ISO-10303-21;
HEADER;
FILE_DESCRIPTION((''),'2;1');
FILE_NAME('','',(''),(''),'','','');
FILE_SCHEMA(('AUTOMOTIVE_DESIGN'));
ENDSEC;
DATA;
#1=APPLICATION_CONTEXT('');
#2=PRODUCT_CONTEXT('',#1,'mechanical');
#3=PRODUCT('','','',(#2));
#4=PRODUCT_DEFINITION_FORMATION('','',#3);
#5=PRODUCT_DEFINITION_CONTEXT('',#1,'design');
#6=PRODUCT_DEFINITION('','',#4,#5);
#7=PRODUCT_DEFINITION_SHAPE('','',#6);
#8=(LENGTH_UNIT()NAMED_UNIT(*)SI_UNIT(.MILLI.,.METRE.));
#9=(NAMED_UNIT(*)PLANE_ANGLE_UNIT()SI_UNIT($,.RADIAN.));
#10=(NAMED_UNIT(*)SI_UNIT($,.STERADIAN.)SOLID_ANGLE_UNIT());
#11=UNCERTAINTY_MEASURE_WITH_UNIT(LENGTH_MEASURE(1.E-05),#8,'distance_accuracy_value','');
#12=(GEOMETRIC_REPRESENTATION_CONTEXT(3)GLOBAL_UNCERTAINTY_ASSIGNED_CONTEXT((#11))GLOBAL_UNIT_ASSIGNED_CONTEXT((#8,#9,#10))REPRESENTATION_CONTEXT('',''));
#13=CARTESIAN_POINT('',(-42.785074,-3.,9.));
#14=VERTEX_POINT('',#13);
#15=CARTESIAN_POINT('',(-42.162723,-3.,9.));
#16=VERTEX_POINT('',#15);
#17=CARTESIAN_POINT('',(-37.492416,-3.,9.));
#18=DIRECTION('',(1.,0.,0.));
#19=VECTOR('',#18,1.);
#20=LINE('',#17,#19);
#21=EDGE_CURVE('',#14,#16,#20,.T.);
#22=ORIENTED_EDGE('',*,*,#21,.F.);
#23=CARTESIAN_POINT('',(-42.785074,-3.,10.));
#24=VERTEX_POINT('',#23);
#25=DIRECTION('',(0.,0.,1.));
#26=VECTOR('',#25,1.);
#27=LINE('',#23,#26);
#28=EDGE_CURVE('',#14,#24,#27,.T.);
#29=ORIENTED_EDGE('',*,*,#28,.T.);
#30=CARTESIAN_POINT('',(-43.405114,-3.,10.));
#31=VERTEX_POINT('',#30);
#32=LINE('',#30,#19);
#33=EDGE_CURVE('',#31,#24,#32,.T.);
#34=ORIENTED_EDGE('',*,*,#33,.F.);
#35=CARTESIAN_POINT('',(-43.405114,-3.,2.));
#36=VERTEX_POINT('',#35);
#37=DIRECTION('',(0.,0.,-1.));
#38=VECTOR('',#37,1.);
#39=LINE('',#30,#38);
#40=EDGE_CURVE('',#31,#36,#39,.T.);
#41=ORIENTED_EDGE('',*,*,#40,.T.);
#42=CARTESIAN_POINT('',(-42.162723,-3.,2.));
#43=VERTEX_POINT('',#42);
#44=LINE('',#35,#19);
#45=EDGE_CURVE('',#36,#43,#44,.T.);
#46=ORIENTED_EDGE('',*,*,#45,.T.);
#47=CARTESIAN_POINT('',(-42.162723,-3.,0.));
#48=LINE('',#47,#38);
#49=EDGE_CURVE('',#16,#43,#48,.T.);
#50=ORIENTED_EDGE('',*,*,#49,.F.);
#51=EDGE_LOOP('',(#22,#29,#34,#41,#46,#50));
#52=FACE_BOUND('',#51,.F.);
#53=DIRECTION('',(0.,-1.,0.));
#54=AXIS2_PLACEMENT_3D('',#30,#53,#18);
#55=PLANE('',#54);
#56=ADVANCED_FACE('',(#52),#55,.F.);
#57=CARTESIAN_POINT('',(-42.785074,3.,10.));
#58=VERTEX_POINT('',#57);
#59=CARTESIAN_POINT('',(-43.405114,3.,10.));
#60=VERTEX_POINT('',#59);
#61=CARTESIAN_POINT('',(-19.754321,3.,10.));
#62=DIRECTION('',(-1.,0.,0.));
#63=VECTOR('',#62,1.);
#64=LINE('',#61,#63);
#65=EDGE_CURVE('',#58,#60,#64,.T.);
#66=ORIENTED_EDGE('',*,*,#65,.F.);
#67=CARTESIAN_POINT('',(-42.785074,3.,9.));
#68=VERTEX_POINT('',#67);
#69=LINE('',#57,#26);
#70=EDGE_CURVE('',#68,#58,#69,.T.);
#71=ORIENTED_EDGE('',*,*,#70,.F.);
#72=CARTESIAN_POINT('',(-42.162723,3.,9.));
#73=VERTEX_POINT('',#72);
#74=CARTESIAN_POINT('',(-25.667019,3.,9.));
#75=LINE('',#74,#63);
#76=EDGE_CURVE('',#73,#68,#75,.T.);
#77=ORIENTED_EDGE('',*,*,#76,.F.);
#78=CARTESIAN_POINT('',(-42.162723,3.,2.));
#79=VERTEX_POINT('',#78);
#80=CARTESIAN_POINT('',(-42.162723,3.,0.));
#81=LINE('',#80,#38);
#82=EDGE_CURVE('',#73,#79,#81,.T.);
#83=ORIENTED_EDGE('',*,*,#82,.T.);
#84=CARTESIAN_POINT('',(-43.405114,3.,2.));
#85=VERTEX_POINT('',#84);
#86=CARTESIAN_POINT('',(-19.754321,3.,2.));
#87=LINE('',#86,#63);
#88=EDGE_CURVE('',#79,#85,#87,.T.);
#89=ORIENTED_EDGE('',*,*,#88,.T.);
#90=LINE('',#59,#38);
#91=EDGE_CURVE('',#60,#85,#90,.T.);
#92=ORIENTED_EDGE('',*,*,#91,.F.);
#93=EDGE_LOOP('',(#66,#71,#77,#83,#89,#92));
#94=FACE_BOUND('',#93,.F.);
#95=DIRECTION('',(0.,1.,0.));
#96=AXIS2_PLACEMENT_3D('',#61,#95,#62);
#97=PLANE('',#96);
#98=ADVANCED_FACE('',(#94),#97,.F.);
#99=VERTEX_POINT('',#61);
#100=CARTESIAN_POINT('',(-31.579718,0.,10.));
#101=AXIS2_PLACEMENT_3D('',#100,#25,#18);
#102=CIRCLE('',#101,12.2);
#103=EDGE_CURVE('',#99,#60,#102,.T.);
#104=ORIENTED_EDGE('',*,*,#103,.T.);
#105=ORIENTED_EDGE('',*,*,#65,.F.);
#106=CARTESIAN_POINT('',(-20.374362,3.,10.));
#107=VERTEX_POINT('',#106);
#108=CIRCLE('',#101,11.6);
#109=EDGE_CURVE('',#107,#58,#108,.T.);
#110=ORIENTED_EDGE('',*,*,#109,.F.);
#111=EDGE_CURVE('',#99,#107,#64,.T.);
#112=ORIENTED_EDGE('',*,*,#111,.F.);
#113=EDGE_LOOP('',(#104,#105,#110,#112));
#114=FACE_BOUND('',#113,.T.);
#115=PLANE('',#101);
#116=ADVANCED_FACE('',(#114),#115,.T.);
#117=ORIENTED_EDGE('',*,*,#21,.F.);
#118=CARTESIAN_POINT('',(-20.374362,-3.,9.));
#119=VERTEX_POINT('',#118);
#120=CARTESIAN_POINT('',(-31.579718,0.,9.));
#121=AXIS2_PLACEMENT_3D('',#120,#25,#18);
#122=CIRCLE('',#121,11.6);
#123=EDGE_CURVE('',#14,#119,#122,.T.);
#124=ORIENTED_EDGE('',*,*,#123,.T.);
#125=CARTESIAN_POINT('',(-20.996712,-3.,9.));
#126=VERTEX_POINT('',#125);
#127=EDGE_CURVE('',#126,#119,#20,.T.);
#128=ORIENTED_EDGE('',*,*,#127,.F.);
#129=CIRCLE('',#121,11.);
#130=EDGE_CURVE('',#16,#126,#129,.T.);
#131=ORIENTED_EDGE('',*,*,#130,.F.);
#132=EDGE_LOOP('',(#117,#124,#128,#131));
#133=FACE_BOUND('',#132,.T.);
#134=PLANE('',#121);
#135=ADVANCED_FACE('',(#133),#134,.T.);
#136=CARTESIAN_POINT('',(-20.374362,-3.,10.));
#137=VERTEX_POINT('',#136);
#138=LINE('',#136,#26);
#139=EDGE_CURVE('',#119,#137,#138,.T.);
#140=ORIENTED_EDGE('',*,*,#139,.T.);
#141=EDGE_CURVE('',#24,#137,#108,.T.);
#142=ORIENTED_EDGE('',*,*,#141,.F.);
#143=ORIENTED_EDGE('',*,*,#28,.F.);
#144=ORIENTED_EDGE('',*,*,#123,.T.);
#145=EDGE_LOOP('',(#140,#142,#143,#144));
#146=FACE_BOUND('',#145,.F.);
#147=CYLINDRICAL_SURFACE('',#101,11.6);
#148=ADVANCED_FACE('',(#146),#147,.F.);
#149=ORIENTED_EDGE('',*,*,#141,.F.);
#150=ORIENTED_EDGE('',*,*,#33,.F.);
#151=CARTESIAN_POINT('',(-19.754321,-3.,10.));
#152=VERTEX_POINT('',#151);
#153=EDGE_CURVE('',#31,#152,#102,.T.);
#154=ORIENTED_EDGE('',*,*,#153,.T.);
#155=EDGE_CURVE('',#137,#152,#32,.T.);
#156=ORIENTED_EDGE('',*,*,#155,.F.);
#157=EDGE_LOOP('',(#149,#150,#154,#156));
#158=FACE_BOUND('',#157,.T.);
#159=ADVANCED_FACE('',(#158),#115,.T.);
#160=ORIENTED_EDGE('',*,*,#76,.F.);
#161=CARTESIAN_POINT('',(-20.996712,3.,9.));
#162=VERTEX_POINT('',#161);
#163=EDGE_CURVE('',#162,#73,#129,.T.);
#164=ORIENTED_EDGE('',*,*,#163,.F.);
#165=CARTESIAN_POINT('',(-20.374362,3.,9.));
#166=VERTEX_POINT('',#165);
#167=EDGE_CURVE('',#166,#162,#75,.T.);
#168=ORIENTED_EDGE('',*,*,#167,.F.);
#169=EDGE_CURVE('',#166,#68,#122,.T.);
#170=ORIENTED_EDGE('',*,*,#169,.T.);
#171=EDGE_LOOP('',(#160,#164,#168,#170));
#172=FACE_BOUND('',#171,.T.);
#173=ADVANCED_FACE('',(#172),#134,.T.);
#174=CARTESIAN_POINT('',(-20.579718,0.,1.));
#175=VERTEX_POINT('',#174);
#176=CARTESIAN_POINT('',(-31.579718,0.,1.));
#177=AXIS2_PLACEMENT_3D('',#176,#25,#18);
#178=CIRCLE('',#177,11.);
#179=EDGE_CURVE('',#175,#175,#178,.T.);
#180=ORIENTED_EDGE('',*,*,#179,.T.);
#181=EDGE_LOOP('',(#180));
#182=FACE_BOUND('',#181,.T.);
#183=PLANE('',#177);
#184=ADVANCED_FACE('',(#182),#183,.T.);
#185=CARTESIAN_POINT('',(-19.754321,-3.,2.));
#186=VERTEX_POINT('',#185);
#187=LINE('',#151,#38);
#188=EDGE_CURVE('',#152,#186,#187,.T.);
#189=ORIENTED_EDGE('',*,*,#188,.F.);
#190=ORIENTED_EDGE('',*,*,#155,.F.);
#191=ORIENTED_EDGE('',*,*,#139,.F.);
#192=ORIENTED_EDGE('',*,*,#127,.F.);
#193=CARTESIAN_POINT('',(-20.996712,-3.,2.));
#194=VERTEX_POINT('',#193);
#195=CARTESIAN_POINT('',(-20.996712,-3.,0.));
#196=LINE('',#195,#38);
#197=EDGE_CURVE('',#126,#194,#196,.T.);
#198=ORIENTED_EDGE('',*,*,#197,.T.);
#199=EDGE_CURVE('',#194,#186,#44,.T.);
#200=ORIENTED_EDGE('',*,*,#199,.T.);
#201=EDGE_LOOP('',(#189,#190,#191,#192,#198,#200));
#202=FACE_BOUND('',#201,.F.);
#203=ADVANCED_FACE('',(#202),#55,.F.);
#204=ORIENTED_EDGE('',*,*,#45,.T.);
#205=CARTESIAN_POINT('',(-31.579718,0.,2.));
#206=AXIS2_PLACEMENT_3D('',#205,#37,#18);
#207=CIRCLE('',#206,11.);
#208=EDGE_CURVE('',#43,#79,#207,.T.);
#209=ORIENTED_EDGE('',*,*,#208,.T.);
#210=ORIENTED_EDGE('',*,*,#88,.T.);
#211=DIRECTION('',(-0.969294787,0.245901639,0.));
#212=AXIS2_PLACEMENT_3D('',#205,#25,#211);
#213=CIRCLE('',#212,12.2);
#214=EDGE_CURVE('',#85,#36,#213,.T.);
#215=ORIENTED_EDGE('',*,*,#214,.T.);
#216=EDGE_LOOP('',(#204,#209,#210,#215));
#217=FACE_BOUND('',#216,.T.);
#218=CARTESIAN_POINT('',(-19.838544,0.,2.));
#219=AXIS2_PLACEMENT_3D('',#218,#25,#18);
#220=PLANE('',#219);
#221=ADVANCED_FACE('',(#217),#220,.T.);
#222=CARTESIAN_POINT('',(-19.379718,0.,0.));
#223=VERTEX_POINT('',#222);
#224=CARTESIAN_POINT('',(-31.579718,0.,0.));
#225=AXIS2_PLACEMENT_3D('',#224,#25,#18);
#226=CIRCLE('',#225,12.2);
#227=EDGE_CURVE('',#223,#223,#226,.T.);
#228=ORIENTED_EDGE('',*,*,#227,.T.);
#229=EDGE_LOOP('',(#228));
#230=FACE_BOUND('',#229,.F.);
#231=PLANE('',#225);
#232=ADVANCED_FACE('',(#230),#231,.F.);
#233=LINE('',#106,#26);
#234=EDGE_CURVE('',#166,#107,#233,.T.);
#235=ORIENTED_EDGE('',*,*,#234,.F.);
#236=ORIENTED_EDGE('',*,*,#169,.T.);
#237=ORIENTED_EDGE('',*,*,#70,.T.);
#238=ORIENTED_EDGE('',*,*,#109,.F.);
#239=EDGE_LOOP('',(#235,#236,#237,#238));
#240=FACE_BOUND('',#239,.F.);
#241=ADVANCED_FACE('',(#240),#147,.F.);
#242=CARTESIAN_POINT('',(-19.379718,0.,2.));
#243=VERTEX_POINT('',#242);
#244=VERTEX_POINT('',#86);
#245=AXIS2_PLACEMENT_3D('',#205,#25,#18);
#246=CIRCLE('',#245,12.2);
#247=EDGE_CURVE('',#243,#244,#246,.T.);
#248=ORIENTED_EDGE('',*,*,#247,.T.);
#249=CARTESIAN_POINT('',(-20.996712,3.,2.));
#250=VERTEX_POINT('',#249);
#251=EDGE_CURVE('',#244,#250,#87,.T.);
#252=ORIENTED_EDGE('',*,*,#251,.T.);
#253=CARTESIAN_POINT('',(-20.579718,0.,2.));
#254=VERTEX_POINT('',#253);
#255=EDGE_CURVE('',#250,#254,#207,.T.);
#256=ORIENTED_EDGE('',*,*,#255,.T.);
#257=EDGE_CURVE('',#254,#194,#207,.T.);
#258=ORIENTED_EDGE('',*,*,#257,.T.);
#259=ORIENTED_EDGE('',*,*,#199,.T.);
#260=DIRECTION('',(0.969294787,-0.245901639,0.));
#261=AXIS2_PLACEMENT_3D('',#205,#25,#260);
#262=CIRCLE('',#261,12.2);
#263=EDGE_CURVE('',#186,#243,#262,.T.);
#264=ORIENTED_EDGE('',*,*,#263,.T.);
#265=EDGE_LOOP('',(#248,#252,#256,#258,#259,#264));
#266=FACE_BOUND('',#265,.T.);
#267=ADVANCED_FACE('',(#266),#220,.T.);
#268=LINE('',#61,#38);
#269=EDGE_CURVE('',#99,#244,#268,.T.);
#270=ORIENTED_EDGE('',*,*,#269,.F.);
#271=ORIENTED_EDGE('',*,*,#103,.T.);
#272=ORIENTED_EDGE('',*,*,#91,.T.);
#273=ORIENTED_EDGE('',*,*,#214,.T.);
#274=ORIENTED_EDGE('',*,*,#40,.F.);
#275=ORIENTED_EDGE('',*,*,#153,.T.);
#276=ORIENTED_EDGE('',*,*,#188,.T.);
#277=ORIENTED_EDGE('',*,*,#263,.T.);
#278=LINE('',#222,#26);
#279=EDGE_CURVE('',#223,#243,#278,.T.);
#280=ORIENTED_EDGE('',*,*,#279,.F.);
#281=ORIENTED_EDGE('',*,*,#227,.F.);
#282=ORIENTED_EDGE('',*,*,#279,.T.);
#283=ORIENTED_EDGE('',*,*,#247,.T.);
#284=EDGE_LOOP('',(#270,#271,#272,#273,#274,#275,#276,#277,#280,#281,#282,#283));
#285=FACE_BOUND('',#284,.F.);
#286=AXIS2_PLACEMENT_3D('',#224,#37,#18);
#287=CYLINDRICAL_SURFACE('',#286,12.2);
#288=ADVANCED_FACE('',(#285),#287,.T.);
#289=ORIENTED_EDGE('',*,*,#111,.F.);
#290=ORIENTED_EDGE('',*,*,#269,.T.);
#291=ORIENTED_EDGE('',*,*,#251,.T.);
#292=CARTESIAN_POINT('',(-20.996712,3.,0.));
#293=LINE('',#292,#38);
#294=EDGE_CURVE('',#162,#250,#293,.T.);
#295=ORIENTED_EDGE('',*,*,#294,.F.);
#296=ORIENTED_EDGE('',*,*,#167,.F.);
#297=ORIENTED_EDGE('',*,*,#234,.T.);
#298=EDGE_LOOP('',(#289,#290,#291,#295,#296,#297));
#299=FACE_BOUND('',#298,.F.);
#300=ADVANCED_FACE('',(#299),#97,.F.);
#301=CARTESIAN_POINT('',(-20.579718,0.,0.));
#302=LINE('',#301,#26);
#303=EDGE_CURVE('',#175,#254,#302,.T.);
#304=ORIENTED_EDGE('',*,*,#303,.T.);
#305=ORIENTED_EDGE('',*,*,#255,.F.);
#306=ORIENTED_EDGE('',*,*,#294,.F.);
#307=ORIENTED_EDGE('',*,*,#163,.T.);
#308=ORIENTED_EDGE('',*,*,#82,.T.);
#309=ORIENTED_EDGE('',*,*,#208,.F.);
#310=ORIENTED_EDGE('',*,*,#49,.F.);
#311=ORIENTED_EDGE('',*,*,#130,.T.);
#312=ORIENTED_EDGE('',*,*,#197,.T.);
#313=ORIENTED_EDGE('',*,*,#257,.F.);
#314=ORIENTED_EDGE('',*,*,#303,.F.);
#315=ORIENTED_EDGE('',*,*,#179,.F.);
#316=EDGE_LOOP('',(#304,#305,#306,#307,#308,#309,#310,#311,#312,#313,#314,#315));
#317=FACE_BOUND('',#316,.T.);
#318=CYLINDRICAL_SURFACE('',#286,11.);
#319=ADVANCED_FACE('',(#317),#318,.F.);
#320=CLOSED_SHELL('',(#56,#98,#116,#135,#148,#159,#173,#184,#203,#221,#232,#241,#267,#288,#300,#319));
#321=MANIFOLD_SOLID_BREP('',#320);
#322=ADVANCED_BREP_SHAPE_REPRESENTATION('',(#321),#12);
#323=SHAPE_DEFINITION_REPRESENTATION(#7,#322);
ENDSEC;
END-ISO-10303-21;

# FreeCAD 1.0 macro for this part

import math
import FreeCAD as App
import Part
import Sketcher
from FreeCAD import Vector
Q = App.Units.Quantity

doc = App.newDocument("Part")
params = doc.addObject("Spreadsheet::Sheet", "Params")
for row, (alias, value) in enumerate([
    ("sketch1_diameter", "22 mm"),
    ("pad1_length", "1 mm"),
    ("sketch2_diameter", "22 mm"),
    ("sketch2_diameter2", "24.4 mm"),
    ("pad2_length", "10 mm"),
    ("sketch3_diameter", "22 mm"),
    ("sketch3_diameter2", "23.2 mm"),
    ("pocket1_length", "1 mm"),
    ("sketch4_radius", "12.2 mm"),
    ("pocket2_length", "8 mm"),
], start=1):
    params.set(f"A{row}", alias)
    params.set(f"B{row}", "=" + value)
    params.setAlias(f"B{row}", alias)

body = doc.addObject("PartDesign::Body", "Body")

# Sketch on XY plane
sketch1 = body.newObject("Sketcher::SketchObject", "Sketch")
sketch1.AttachmentSupport = (doc.getObject("XY_Plane"), [""])
sketch1.MapMode = "FlatFace"
sketch1.addGeometry(Part.Circle(Vector(-32, 0, 0), Vector(0, 0, 1), 11), False)
sketch1.addConstraint(Sketcher.Constraint("PointOnObject", 0, 3, -1))
sketch1.addConstraint(Sketcher.Constraint("Diameter", 0, Q("22 mm")))
sketch1.addConstraint(Sketcher.Constraint("DistanceX", 0, 3, -1, 1, Q("31.579718 mm")))
sketch1.setExpression("Constraints[1]", "Params.sketch1_diameter")
pad1 = body.newObject("PartDesign::Pad", "Pad")
pad1.Profile = sketch1
pad1.setExpression("Length", "Params.pad1_length")

# Sketch on XY plane
sketch2 = body.newObject("Sketcher::SketchObject", "Sketch001")
sketch2.AttachmentSupport = (doc.getObject("XY_Plane"), [""])
sketch2.MapMode = "FlatFace"
sketch2.addGeometry(Part.Circle(Vector(-32, 0, 0), Vector(0, 0, 1), 12), False)
sketch2.addGeometry(Part.Circle(Vector(-32, 0, 0), Vector(0, 0, 1), 11), False)
sketch2.addConstraint(Sketcher.Constraint("Coincident", 1, 3, 0, 3))
sketch2.addConstraint(Sketcher.Constraint("PointOnObject", 0, 3, -1))
sketch2.addConstraint(Sketcher.Constraint("Diameter", 1, Q("22 mm")))
sketch2.addConstraint(Sketcher.Constraint("Diameter", 0, Q("24.4 mm")))
sketch2.addConstraint(Sketcher.Constraint("DistanceX", 0, 3, -1, 1, Q("31.579718 mm")))
sketch2.setExpression("Constraints[2]", "Params.sketch2_diameter")
sketch2.setExpression("Constraints[3]", "Params.sketch2_diameter2")
pad2 = body.newObject("PartDesign::Pad", "Pad001")
pad2.Profile = sketch2
pad2.setExpression("Length", "Params.pad2_length")

# Sketch on XY plane
sketch3 = body.newObject("Sketcher::SketchObject", "Sketch002")
sketch3.AttachmentSupport = (doc.getObject("XY_Plane"), [""])
sketch3.MapMode = "FlatFace"
sketch3.AttachmentOffset = App.Placement(Vector(0, 0, 10), App.Rotation())
sketch3.addGeometry(Part.Circle(Vector(-32, 0, 0), Vector(0, 0, 1), 12), False)
sketch3.addGeometry(Part.Circle(Vector(-32, 0, 0), Vector(0, 0, 1), 11), False)
sketch3.addConstraint(Sketcher.Constraint("Coincident", 1, 3, 0, 3))
sketch3.addConstraint(Sketcher.Constraint("PointOnObject", 0, 3, -1))
sketch3.addConstraint(Sketcher.Constraint("Diameter", 1, Q("22 mm")))
sketch3.addConstraint(Sketcher.Constraint("Diameter", 0, Q("23.2 mm")))
sketch3.addConstraint(Sketcher.Constraint("DistanceX", 0, 3, -1, 1, Q("31.579718 mm")))
sketch3.setExpression("Constraints[2]", "Params.sketch3_diameter")
sketch3.setExpression("Constraints[3]", "Params.sketch3_diameter2")
pocket1 = body.newObject("PartDesign::Pocket", "Pocket")
pocket1.Profile = sketch3
pocket1.setExpression("Length", "Params.pocket1_length")

# Sketch on XY plane
sketch4 = body.newObject("Sketcher::SketchObject", "Sketch003")
sketch4.AttachmentSupport = (doc.getObject("XY_Plane"), [""])
sketch4.MapMode = "FlatFace"
sketch4.AttachmentOffset = App.Placement(Vector(0, 0, 10), App.Rotation())
sketch4.addGeometry(Part.ArcOfCircle(Part.Circle(Vector(-31.6, 0, 0), Vector(0, 0, 1), 12.2), math.radians(0), math.radians(14.24)), False)
sketch4.addGeometry(Part.LineSegment(Vector(-19.8, 3, 0), Vector(-43.4, 3, 0)), False)
sketch4.addGeometry(Part.ArcOfCircle(Part.Circle(Vector(-31.6, 0, 0), Vector(0, 0, 1), 12.2), math.radians(166), math.radians(194)), False)
sketch4.addGeometry(Part.LineSegment(Vector(-43.4, -3, 0), Vector(-19.8, -3, 0)), False)
sketch4.addGeometry(Part.ArcOfCircle(Part.Circle(Vector(-31.6, 0, 0), Vector(0, 0, 1), 12.2), math.radians(-14.24), math.radians(0)), False)
sketch4.addConstraint(Sketcher.Constraint("Coincident", 0, 2, 1, 1))
sketch4.addConstraint(Sketcher.Constraint("Coincident", 1, 2, 2, 1))
sketch4.addConstraint(Sketcher.Constraint("Coincident", 2, 2, 3, 1))
sketch4.addConstraint(Sketcher.Constraint("Coincident", 3, 2, 4, 1))
sketch4.addConstraint(Sketcher.Constraint("Tangent", 4, 2, 0, 1))
sketch4.addConstraint(Sketcher.Constraint("Horizontal", 1))
sketch4.addConstraint(Sketcher.Constraint("Horizontal", 3))
sketch4.addConstraint(Sketcher.Constraint("Coincident", 2, 3, 0, 3))
sketch4.addConstraint(Sketcher.Constraint("Equal", 0, 2))
sketch4.addConstraint(Sketcher.Constraint("Equal", 2, 4))
sketch4.addConstraint(Sketcher.Constraint("Symmetric", 1, 2, 2, 2, -1))
sketch4.addConstraint(Sketcher.Constraint("PointOnObject", 4, 2, -1))
sketch4.addConstraint(Sketcher.Constraint("Radius", 0, Q("12.2 mm")))
sketch4.addConstraint(Sketcher.Constraint("DistanceY", -1, 1, 0, 2, Q("3 mm")))
sketch4.addConstraint(Sketcher.Constraint("DistanceX", 0, 2, -1, 1, Q("19.754321 mm")))
sketch4.setExpression("Constraints[12]", "Params.sketch4_radius")
pocket2 = body.newObject("PartDesign::Pocket", "Pocket001")
pocket2.Profile = sketch4
pocket2.setExpression("Length", "Params.pocket2_length")

doc.recompute()
